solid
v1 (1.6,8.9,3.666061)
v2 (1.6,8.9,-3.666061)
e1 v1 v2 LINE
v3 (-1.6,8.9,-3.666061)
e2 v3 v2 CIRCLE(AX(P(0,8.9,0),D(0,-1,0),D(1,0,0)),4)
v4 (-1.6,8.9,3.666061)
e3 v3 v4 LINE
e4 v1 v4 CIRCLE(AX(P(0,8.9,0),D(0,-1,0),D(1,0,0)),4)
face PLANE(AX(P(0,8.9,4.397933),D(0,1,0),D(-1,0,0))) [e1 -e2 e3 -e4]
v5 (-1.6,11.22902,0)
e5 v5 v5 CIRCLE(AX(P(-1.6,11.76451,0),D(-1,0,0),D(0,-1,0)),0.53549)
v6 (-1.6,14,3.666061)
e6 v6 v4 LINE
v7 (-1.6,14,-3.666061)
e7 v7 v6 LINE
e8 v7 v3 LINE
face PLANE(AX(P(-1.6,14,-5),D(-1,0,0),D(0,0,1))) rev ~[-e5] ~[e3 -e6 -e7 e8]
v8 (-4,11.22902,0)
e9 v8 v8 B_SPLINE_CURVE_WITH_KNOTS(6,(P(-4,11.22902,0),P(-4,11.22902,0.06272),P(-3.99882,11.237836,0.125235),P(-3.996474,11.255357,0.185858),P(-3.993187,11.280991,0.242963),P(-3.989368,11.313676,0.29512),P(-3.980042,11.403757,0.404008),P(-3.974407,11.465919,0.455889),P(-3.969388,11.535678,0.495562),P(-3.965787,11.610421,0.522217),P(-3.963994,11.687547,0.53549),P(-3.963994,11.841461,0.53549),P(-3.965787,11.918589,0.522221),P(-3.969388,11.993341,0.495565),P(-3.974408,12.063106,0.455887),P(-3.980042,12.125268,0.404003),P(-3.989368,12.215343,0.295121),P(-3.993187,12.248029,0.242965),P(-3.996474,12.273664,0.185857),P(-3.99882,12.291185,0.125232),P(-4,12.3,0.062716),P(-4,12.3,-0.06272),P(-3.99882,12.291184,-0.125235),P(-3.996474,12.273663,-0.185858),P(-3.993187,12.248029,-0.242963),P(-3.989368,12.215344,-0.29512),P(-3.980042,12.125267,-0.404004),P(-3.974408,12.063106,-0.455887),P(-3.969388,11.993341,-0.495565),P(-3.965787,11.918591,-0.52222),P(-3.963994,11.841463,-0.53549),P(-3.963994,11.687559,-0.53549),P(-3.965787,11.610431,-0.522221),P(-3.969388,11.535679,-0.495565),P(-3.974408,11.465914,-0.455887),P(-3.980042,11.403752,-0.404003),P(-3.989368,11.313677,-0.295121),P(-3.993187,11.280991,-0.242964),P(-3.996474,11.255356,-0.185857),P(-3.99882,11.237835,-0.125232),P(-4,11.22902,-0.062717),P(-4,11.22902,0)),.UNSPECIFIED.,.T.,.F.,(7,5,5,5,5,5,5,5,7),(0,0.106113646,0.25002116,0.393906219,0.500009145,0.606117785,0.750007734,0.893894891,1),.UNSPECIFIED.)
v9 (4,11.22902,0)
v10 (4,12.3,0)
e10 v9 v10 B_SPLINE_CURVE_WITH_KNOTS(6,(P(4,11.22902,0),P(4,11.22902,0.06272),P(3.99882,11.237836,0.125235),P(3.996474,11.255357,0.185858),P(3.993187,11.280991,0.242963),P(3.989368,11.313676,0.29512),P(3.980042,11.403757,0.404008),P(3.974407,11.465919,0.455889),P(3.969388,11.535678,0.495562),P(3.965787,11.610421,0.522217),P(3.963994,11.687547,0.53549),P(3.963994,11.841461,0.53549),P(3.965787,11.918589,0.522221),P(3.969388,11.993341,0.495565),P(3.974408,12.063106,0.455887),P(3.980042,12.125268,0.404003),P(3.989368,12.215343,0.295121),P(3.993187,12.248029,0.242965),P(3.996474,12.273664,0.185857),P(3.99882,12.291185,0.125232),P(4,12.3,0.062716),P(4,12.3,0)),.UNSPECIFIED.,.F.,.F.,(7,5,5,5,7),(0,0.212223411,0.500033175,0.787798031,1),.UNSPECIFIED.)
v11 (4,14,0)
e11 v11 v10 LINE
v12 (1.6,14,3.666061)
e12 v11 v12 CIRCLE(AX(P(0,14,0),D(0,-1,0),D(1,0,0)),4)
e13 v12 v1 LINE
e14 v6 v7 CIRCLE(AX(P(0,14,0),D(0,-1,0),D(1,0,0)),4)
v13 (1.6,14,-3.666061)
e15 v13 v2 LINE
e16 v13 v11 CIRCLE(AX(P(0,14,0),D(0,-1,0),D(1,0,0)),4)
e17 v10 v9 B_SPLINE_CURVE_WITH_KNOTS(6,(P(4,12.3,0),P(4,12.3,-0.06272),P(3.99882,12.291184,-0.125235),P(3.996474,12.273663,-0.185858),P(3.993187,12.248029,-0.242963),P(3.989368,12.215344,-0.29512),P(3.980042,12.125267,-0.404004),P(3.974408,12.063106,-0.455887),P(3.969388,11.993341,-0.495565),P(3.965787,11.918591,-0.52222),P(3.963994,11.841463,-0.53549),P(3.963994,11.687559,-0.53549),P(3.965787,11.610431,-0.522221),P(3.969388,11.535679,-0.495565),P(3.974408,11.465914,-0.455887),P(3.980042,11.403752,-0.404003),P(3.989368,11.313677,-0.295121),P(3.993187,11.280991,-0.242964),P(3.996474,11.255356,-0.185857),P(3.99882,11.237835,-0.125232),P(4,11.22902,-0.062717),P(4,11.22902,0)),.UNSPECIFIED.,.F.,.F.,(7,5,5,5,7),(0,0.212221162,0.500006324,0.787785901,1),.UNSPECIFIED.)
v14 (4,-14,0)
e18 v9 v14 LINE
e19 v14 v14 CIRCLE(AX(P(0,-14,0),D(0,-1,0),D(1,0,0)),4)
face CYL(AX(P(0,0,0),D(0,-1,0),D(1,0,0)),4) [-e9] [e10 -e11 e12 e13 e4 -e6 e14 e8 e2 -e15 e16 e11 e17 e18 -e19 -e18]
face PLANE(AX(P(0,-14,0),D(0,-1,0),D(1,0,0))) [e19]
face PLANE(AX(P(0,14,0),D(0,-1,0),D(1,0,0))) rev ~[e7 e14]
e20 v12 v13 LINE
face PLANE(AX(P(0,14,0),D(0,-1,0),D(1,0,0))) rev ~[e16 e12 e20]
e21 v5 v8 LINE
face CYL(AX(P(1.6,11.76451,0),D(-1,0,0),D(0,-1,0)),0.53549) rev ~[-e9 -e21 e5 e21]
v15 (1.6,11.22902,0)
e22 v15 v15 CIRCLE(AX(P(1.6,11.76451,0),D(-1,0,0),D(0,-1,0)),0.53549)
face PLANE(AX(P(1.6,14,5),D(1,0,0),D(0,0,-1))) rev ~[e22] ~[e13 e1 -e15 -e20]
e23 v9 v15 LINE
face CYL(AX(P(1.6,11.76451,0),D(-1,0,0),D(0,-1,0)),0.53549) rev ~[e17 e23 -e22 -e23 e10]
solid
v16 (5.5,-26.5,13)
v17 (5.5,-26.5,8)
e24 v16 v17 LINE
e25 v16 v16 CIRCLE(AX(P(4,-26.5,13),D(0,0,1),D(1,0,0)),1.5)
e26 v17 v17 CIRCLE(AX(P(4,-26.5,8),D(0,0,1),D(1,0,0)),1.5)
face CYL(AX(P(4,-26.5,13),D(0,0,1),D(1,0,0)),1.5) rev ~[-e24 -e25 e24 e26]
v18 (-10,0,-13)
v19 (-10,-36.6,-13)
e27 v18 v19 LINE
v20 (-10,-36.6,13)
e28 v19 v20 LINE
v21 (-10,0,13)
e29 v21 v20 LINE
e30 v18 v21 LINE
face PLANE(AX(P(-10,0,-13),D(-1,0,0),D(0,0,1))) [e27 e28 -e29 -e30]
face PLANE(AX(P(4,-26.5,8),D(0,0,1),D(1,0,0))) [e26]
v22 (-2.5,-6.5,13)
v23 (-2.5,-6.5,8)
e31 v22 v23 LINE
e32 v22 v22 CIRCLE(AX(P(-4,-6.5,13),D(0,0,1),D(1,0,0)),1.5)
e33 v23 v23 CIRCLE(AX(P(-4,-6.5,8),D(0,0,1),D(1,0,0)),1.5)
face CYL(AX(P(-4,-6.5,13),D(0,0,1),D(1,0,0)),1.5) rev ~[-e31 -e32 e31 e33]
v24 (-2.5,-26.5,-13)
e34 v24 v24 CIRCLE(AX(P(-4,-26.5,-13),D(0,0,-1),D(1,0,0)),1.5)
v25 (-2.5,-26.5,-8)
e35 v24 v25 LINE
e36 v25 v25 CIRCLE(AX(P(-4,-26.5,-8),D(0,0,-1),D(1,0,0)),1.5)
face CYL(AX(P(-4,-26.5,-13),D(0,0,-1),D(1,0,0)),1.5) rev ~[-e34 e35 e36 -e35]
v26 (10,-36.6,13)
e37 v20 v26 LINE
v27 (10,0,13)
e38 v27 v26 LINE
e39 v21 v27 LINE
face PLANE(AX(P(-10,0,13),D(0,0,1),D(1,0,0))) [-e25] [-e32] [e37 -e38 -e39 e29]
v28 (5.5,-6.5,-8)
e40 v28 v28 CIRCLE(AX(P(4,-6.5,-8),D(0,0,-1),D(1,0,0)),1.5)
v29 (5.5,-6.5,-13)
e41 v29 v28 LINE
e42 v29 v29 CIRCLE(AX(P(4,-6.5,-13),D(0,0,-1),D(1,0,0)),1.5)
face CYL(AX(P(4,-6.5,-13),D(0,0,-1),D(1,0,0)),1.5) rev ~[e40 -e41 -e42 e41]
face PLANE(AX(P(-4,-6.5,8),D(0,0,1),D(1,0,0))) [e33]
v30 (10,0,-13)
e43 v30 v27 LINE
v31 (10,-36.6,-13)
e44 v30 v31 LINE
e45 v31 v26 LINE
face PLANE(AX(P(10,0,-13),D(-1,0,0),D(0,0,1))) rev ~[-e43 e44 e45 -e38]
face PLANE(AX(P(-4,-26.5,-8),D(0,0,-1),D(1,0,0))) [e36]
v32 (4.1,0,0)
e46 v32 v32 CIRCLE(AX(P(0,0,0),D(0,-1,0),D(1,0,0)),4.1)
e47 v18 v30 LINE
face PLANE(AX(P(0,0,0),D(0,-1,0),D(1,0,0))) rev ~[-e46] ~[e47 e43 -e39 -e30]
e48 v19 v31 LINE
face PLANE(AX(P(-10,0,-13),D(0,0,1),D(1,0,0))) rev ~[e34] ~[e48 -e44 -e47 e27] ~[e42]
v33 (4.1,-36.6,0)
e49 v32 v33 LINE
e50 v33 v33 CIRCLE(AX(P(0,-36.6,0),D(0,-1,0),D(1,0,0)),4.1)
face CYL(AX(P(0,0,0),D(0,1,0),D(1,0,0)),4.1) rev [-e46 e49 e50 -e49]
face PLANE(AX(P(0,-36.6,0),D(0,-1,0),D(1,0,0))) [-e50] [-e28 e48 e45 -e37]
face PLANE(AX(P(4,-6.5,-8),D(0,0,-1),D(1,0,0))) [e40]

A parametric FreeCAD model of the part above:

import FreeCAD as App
import Part
import Sketcher

V = App.Vector


def add_polygon(sketch, points):
    """Adds a closed chain of lines whose ends are joined by coincident constraints."""
    first, n = sketch.GeometryCount, len(points)
    for a, b in zip(points, points[1:] + points[:1]):
        sketch.addGeometry(Part.LineSegment(App.Vector(*a, 0), App.Vector(*b, 0)), False)
    for i in range(n):
        sketch.addConstraint(Sketcher.Constraint("Coincident", first + i, 2, first + (i + 1) % n, 1))

doc = App.newDocument("Part")
body = doc.addObject("PartDesign::Body", "Body")

# Sketch on XZ plane
sketch1 = body.newObject("Sketcher::SketchObject", "Sketch")
sketch1.AttachmentSupport = (doc.getObject("XZ_Plane"), [""])
sketch1.MapMode = "FlatFace"
add_polygon(sketch1, [(-10, 13), (-10, -13), (10, -13), (10, 13)])  # lines 0-3
sketch1.addGeometry(Part.Circle(V(0, 0, 0), V(0, 0, 1), 4.1), False)  # 4
sketch1.addConstraint(Sketcher.Constraint("Vertical", 0))
sketch1.addConstraint(Sketcher.Constraint("Horizontal", 1))
sketch1.addConstraint(Sketcher.Constraint("Vertical", 2))
sketch1.addConstraint(Sketcher.Constraint("Horizontal", 3))
sketch1.addConstraint(Sketcher.Constraint("Coincident", 4, 3, -1, 1))
sketch1.addConstraint(Sketcher.Constraint("Symmetric", 0, 2, 2, 2, -1, 1))
sketch1.addConstraint(Sketcher.Constraint("Diameter", 4, 8.2))
sketch1.addConstraint(Sketcher.Constraint("DistanceX", 1, 1, 1, 2, 20.0))
sketch1.addConstraint(Sketcher.Constraint("DistanceY", 0, 2, 0, 1, 26.0))
pad1 = body.newObject("PartDesign::Pad", "Pad")
pad1.Profile = sketch1
pad1.Length = 36.6

# Sketch on XY plane
sketch2 = body.newObject("Sketcher::SketchObject", "Sketch001")
sketch2.AttachmentSupport = (doc.getObject("XY_Plane"), [""])
sketch2.MapMode = "FlatFace"
sketch2.AttachmentOffset = App.Placement(V(0, 0, 13), App.Rotation())
sketch2.addGeometry(Part.Circle(V(-4, -6.5, 0), V(0, 0, 1), 1.5), False)
sketch2.addGeometry(Part.Circle(V(4, -26.5, 0), V(0, 0, 1), 1.5), False)
sketch2.addConstraint(Sketcher.Constraint("Equal", 0, 1))
sketch2.addConstraint(Sketcher.Constraint("Diameter", 0, 3.0))
sketch2.addConstraint(Sketcher.Constraint("DistanceX", 0, 3, -1, 1, 4.0))
sketch2.addConstraint(Sketcher.Constraint("DistanceX", -1, 1, 1, 3, 4.0))
sketch2.addConstraint(Sketcher.Constraint("DistanceY", 1, 3, 0, 3, 20.0))
sketch2.addConstraint(Sketcher.Constraint("DistanceY", 0, 3, -1, 1, 6.5))
pocket1 = body.newObject("PartDesign::Pocket", "Pocket")
pocket1.Profile = sketch2
pocket1.Length = 5

# Sketch on XY plane
sketch3 = body.newObject("Sketcher::SketchObject", "Sketch002")
sketch3.AttachmentSupport = (doc.getObject("XY_Plane"), [""])
sketch3.MapMode = "FlatFace"
sketch3.AttachmentOffset = App.Placement(V(0, 0, -13), App.Rotation())
sketch3.addGeometry(Part.Circle(V(-4, -26.5, 0), V(0, 0, 1), 1.5), False)
sketch3.addGeometry(Part.Circle(V(4, -6.5, 0), V(0, 0, 1), 1.5), False)
sketch3.addConstraint(Sketcher.Constraint("Equal", 0, 1))
sketch3.addConstraint(Sketcher.Constraint("Diameter", 0, 3.0))
sketch3.addConstraint(Sketcher.Constraint("DistanceX", 0, 3, -1, 1, 4.0))
sketch3.addConstraint(Sketcher.Constraint("DistanceX", -1, 1, 1, 3, 4.0))
sketch3.addConstraint(Sketcher.Constraint("DistanceY", 0, 3, 1, 3, 20.0))
sketch3.addConstraint(Sketcher.Constraint("DistanceY", 0, 3, -1, 1, 26.5))
pocket2 = body.newObject("PartDesign::Pocket", "Pocket001")
pocket2.Profile = sketch3
pocket2.Length = 5
pocket2.Reversed = True
body2 = doc.addObject("PartDesign::Body", "Body001")

# Sketch on XZ plane
sketch4 = body2.newObject("Sketcher::SketchObject", "Sketch003")
sketch4.AttachmentSupport = (doc.getObject("XZ_Plane001"), [""])
sketch4.MapMode = "FlatFace"
sketch4.addGeometry(Part.Circle(V(0, 0, 0), V(0, 0, 1), 4), False)
sketch4.addConstraint(Sketcher.Constraint("Coincident", 0, 3, -1, 1))
sketch4.addConstraint(Sketcher.Constraint("Diameter", 0, 8.0))
pad2 = body2.newObject("PartDesign::Pad", "Pad001")
pad2.Profile = sketch4
pad2.Length = 28
pad2.Midplane = True

# Sketch on XZ plane
sketch5 = body2.newObject("Sketcher::SketchObject", "Sketch004")
sketch5.AttachmentSupport = (doc.getObject("XZ_Plane001"), [""])
sketch5.MapMode = "FlatFace"
sketch5.AttachmentOffset = App.Placement(V(0, 0, -14), App.Rotation())
add_polygon(sketch5, [(1.6, 5), (1.6, -5), (-1.6, -5), (-1.6, 5)])  # lines 0-3
sketch5.addConstraint(Sketcher.Constraint("Vertical", 0))
sketch5.addConstraint(Sketcher.Constraint("Horizontal", 1))
sketch5.addConstraint(Sketcher.Constraint("Vertical", 2))
sketch5.addConstraint(Sketcher.Constraint("Horizontal", 3))
sketch5.addConstraint(Sketcher.Constraint("Symmetric", 0, 2, 2, 2, -1, 1))
sketch5.addConstraint(Sketcher.Constraint("DistanceY", 0, 2, 0, 1, 10.0))
sketch5.addConstraint(Sketcher.Constraint("DistanceX", 1, 2, 1, 1, 3.2))
pocket3 = body2.newObject("PartDesign::Pocket", "Pocket002")
pocket3.Profile = sketch5
pocket3.Length = 5.1
pocket3.Reversed = True

# Sketch on YZ plane
sketch6 = body2.newObject("Sketcher::SketchObject", "Sketch005")
sketch6.AttachmentSupport = (doc.getObject("YZ_Plane001"), [""])
sketch6.MapMode = "FlatFace"
sketch6.AttachmentOffset = App.Placement(V(0, 0, 1.6), App.Rotation())
sketch6.addGeometry(Part.Circle(V(11.8, 0, 0), V(0, 0, 1), 0.5), False)
sketch6.addConstraint(Sketcher.Constraint("PointOnObject", 0, 3, -1))
sketch6.addConstraint(Sketcher.Constraint("Diameter", 0, 1.07098))
sketch6.addConstraint(Sketcher.Constraint("DistanceX", -1, 1, 0, 3, 11.76451))
pocket4 = body2.newObject("PartDesign::Pocket", "Pocket003")
pocket4.Profile = sketch6
pocket4.Length = 25
pocket4.Midplane = True

doc.recompute()
